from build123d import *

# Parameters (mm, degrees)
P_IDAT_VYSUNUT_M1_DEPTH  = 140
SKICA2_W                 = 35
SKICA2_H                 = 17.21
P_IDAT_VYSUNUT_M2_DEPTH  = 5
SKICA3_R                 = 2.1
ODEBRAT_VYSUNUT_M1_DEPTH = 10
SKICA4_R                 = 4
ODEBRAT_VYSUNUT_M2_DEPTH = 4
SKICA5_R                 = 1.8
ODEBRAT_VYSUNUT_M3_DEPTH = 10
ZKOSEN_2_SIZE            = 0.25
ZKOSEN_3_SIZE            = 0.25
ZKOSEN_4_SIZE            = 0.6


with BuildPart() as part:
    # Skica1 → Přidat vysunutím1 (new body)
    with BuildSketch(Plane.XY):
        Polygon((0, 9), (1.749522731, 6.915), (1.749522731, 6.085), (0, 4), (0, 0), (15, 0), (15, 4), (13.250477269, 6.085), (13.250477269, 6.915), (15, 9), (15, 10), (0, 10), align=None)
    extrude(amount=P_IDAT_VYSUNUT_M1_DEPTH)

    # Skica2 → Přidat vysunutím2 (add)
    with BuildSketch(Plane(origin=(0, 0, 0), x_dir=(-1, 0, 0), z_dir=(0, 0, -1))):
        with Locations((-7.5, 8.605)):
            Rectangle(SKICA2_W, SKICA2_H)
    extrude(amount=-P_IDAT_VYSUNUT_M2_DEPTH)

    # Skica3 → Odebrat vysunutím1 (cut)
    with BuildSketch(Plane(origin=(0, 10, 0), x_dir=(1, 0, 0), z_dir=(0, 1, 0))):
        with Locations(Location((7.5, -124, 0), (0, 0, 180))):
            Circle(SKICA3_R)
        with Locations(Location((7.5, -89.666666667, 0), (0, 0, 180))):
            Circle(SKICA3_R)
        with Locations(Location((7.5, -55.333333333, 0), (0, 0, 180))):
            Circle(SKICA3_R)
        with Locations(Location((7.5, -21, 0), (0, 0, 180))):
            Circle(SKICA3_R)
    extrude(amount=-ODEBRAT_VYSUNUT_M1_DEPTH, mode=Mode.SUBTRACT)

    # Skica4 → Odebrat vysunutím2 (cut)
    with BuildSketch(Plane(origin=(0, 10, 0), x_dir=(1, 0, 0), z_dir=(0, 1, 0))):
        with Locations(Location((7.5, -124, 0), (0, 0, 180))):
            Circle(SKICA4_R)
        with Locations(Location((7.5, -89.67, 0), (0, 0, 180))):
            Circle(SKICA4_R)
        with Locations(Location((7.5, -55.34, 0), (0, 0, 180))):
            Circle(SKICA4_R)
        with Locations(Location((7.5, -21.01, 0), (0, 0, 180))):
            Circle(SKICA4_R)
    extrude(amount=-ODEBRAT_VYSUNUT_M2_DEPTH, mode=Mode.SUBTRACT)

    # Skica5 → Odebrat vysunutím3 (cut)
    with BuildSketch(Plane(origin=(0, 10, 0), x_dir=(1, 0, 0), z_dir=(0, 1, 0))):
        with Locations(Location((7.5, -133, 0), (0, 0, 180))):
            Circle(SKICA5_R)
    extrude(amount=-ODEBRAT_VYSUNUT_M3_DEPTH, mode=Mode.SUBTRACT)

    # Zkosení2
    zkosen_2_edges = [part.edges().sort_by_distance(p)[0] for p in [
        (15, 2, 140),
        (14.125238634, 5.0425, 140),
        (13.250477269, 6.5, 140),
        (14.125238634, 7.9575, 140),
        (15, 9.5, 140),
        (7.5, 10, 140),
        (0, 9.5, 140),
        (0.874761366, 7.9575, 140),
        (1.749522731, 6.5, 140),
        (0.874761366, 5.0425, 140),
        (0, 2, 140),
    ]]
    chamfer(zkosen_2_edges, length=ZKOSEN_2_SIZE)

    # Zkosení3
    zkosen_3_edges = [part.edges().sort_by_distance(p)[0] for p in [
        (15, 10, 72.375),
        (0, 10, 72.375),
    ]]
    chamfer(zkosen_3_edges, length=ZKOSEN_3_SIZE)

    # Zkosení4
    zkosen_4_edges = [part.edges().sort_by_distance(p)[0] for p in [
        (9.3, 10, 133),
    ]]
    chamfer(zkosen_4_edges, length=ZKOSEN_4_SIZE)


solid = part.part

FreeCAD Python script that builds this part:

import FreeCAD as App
import Part
import Sketcher
Q = App.Units.Quantity


def edges_at(feature, points):
    """Names of the edges that pass closest to the given points."""
    edges = feature.Shape.Edges
    near = lambda p: min(range(len(edges)), key=lambda i: edges[i].distToShape(Part.Vertex(*p))[0])
    return sorted({f"Edge{near(p) + 1}" for p in points})


def add_polygon(sketch, points):
    """Adds a closed chain of lines whose ends are joined by coincident constraints."""
    first, n = sketch.GeometryCount, len(points)
    for a, b in zip(points, points[1:] + points[:1]):
        sketch.addGeometry(Part.LineSegment(App.Vector(*a, 0), App.Vector(*b, 0)), False)
    for i in range(n):
        sketch.addConstraint(Sketcher.Constraint("Coincident", first + i, 2, first + (i + 1) % n, 1))

doc = App.newDocument("Part")
body = doc.addObject("PartDesign::Body", "Body")

# Sketch on XY plane
sketch1 = body.newObject("Sketcher::SketchObject", "Sketch")
sketch1.AttachmentSupport = (doc.getObject("XY_Plane"), [""])
sketch1.MapMode = "FlatFace"
add_polygon(sketch1, [(0, 9), (1.749523, 6.915), (1.749523, 6.085), (0, 4), (0, 0), (15, 0), (15, 4), (13.250477, 6.085), (13.250477, 6.915), (15, 9), (15, 10), (0, 10)])  # lines 0-11
sketch1.addConstraint([
    Sketcher.Constraint("Vertical", 1),
    Sketcher.Constraint("Vertical", 3),
    Sketcher.Constraint("Horizontal", 4),
    Sketcher.Constraint("Vertical", 5),
    Sketcher.Constraint("Vertical", 7),
    Sketcher.Constraint("Vertical", 9),
    Sketcher.Constraint("Horizontal", 10),
    Sketcher.Constraint("Vertical", 11),
    Sketcher.Constraint("Coincident", 3, 2, -1, 1),
    Sketcher.Constraint("PointOnObject", 10, 2, -2),
    Sketcher.Constraint("Parallel", 0, 6),
    Sketcher.Constraint("Parallel", 2, 8),
    Sketcher.Constraint("Horizontal", 2, 2, 5, 2),
    Sketcher.Constraint("Horizontal", 1, 2, 6, 2),
    Sketcher.Constraint("Horizontal", 0, 2, 7, 2),
    Sketcher.Constraint("Horizontal", 8, 2, 11, 2),
    Sketcher.Constraint("Vertical", 5, 2, 8, 2),
    Sketcher.Constraint("DistanceX", 4, 1, 4, 2, Q("15 mm")),
    Sketcher.Constraint("DistanceY", 3, 2, 3, 1, Q("4 mm")),
    Sketcher.Constraint("DistanceY", 9, 1, 9, 2, Q("1 mm")),
    Sketcher.Constraint("Angle", 0, Q("-50 deg")),
    Sketcher.Constraint("DistanceY", -1, 1, 8, 2, Q("9 mm")),
    Sketcher.Constraint("DistanceY", 1, 2, 1, 1, Q("0.83 mm")),
])
pad1 = body.newObject("PartDesign::Pad", "Pad")
pad1.Profile = sketch1
pad1.Length = 140

# Sketch on XY plane
sketch2 = body.newObject("Sketcher::SketchObject", "Sketch001")
sketch2.AttachmentSupport = (doc.getObject("XY_Plane"), [""])
sketch2.MapMode = "FlatFace"
add_polygon(sketch2, [(25, 17.21), (25, 0), (-10, 0), (-10, 17.21)])  # lines 0-3
sketch2.addConstraint([
    Sketcher.Constraint("Vertical", 0),
    Sketcher.Constraint("Horizontal", 1),
    Sketcher.Constraint("Vertical", 2),
    Sketcher.Constraint("Horizontal", 3),
    Sketcher.Constraint("PointOnObject", 0, 2, -1),
    Sketcher.Constraint("DistanceX", 1, 2, 1, 1, Q("35 mm")),
    Sketcher.Constraint("DistanceX", -1, 1, 0, 2, Q("25 mm")),
    Sketcher.Constraint("DistanceY", 0, 2, 0, 1, Q("17.21 mm")),
])
pad2 = body.newObject("PartDesign::Pad", "Pad001")
pad2.Profile = sketch2
pad2.Length = 5

# Sketch on XZ plane
sketch3 = body.newObject("Sketcher::SketchObject", "Sketch002")
sketch3.AttachmentSupport = (doc.getObject("XZ_Plane"), [""])
sketch3.MapMode = "FlatFace"
sketch3.AttachmentOffset = App.Placement(App.Vector(0, 0, -10), App.Rotation())
sketch3.addGeometry([
    Part.Circle(App.Vector(7.5, 124, 0), App.Vector(0, 0, 1), 2.1),
    Part.Circle(App.Vector(7.5, 89.666667, 0), App.Vector(0, 0, 1), 2.1),
    Part.Circle(App.Vector(7.5, 55.333333, 0), App.Vector(0, 0, 1), 2.1),
    Part.Circle(App.Vector(7.5, 21, 0), App.Vector(0, 0, 1), 2.1),
], False)
sketch3.addConstraint([
    Sketcher.Constraint("Equal", 0, 1),
    Sketcher.Constraint("Equal", 1, 2),
    Sketcher.Constraint("Equal", 2, 3),
    Sketcher.Constraint("Vertical", 0, 3, 1, 3),
    Sketcher.Constraint("Vertical", 1, 3, 2, 3),
    Sketcher.Constraint("Vertical", 2, 3, 3, 3),
    Sketcher.Constraint("Diameter", 0, Q("4.2 mm")),
    Sketcher.Constraint("DistanceY", -1, 1, 0, 3, Q("124 mm")),
    Sketcher.Constraint("DistanceY", -1, 1, 3, 3, Q("21 mm")),
    Sketcher.Constraint("DistanceX", -1, 1, 0, 3, Q("7.5 mm")),
    Sketcher.Constraint("DistanceY", -1, 1, 1, 3, Q("89.666667 mm")),
    Sketcher.Constraint("DistanceY", -1, 1, 2, 3, Q("55.333333 mm")),
])
pocket1 = body.newObject("PartDesign::Pocket", "Pocket")
pocket1.Profile = sketch3
pocket1.Length = 10
pocket1.Reversed = True

# Sketch on XZ plane
sketch4 = body.newObject("Sketcher::SketchObject", "Sketch003")
sketch4.AttachmentSupport = (doc.getObject("XZ_Plane"), [""])
sketch4.MapMode = "FlatFace"
sketch4.AttachmentOffset = App.Placement(App.Vector(0, 0, -10), App.Rotation())
sketch4.addGeometry([
    Part.Circle(App.Vector(7.5, 124, 0), App.Vector(0, 0, 1), 4),
    Part.Circle(App.Vector(7.5, 89.67, 0), App.Vector(0, 0, 1), 4),
    Part.Circle(App.Vector(7.5, 55.34, 0), App.Vector(0, 0, 1), 4),
    Part.Circle(App.Vector(7.5, 21.01, 0), App.Vector(0, 0, 1), 4),
], False)
sketch4.addConstraint([
    Sketcher.Constraint("Equal", 0, 1),
    Sketcher.Constraint("Equal", 1, 2),
    Sketcher.Constraint("Equal", 2, 3),
    Sketcher.Constraint("Vertical", 0, 3, 1, 3),
    Sketcher.Constraint("Vertical", 1, 3, 2, 3),
    Sketcher.Constraint("Vertical", 2, 3, 3, 3),
    Sketcher.Constraint("Diameter", 0, Q("8 mm")),
    Sketcher.Constraint("DistanceY", -1, 1, 0, 3, Q("124 mm")),
    Sketcher.Constraint("DistanceX", -1, 1, 0, 3, Q("7.5 mm")),
    Sketcher.Constraint("DistanceY", -1, 1, 1, 3, Q("89.67 mm")),
    Sketcher.Constraint("DistanceY", -1, 1, 2, 3, Q("55.34 mm")),
    Sketcher.Constraint("DistanceY", -1, 1, 3, 3, Q("21.01 mm")),
])
pocket2 = body.newObject("PartDesign::Pocket", "Pocket001")
pocket2.Profile = sketch4
pocket2.Length = 4
pocket2.Reversed = True

# Sketch on XZ plane
sketch5 = body.newObject("Sketcher::SketchObject", "Sketch004")
sketch5.AttachmentSupport = (doc.getObject("XZ_Plane"), [""])
sketch5.MapMode = "FlatFace"
sketch5.AttachmentOffset = App.Placement(App.Vector(0, 0, -10), App.Rotation())
sketch5.addGeometry(Part.Circle(App.Vector(7.5, 133, 0), App.Vector(0, 0, 1), 1.8), False)
sketch5.addConstraint([
    Sketcher.Constraint("Diameter", 0, Q("3.6 mm")),
    Sketcher.Constraint("DistanceY", -1, 1, 0, 3, Q("133 mm")),
    Sketcher.Constraint("DistanceX", -1, 1, 0, 3, Q("7.5 mm")),
])
pocket3 = body.newObject("PartDesign::Pocket", "Pocket002")
pocket3.Profile = sketch5
pocket3.Length = 10
pocket3.Reversed = True
doc.recompute()

chamfer = body.newObject("PartDesign::Chamfer", "Chamfer")
chamfer.Base = (pocket3, edges_at(pocket3, [
    (15, 2, 140),
    (14.125, 5.043, 140),
    (13.25, 6.5, 140),
    (14.125, 7.957, 140),
    (15, 9.5, 140),
    (7.5, 10, 140),
    (0, 9.5, 140),
    (0.875, 7.957, 140),
    (1.75, 6.5, 140),
    (0.875, 5.043, 140),
    (0, 2, 140),
]))
chamfer.Size = 0.25
doc.recompute()

chamfer2 = body.newObject("PartDesign::Chamfer", "Chamfer001")
chamfer2.Base = (chamfer, edges_at(chamfer, [(15, 10, 72.375), (0, 10, 72.375)]))
chamfer2.Size = 0.25
doc.recompute()

chamfer3 = body.newObject("PartDesign::Chamfer", "Chamfer002")
chamfer3.Base = (chamfer2, edges_at(chamfer2, [(9.3, 10, 133)]))
chamfer3.Size = 0.6

doc.recompute()
